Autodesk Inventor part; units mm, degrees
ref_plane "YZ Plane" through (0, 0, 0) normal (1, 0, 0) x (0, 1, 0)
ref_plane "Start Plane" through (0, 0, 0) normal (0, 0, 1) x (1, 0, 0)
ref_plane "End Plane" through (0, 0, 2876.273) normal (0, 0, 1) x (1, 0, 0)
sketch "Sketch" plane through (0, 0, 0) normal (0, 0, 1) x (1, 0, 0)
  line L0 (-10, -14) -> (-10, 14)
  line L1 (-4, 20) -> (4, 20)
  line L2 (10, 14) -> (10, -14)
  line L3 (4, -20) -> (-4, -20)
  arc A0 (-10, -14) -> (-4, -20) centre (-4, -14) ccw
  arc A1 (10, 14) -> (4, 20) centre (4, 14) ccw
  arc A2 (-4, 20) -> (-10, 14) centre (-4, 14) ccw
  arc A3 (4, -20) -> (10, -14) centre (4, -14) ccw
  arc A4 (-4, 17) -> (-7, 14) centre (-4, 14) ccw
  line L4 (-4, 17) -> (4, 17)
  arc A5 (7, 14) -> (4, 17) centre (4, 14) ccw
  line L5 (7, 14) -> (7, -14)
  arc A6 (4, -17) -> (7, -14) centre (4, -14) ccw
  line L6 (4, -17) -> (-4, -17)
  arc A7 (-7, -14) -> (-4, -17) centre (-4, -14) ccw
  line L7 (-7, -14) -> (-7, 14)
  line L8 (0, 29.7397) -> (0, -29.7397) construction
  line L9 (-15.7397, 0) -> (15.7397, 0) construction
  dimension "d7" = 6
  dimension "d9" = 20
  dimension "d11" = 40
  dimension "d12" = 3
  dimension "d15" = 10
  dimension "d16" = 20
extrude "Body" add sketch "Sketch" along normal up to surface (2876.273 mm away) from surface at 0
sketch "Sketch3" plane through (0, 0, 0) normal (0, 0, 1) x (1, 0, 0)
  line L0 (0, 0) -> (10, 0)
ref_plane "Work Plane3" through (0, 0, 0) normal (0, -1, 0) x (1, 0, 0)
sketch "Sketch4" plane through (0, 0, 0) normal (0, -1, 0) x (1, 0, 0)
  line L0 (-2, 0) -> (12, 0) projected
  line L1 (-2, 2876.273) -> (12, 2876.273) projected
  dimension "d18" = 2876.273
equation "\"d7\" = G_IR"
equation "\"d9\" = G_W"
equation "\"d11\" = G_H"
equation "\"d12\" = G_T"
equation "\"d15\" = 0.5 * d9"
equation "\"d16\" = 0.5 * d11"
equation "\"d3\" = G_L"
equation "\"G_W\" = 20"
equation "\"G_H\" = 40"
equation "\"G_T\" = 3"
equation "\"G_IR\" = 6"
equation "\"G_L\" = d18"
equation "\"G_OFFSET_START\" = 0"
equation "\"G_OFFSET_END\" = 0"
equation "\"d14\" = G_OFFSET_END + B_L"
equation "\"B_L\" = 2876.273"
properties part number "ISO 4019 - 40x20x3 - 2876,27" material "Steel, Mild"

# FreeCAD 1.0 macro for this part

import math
import FreeCAD as App
import Part
import Sketcher
from FreeCAD import Vector
Q = App.Units.Quantity

doc = App.newDocument("Part")
body = doc.addObject("PartDesign::Body", "Body")

# Sketch on XY plane
sketch1 = body.newObject("Sketcher::SketchObject", "Sketch")
sketch1.AttachmentSupport = (doc.getObject("XY_Plane"), [""])
sketch1.MapMode = "FlatFace"
sketch1.addGeometry(Part.LineSegment(Vector(-10, 14, 0), Vector(-10, -14, 0)), False)
sketch1.addGeometry(Part.ArcOfCircle(Part.Circle(Vector(-4, -14, 0), Vector(0, 0, 1), 6), math.radians(180), math.radians(270)), False)
sketch1.addGeometry(Part.LineSegment(Vector(-4, -20, 0), Vector(4, -20, 0)), False)
sketch1.addGeometry(Part.ArcOfCircle(Part.Circle(Vector(4, -14, 0), Vector(0, 0, 1), 6), math.radians(-90), math.radians(0)), False)
sketch1.addGeometry(Part.LineSegment(Vector(10, -14, 0), Vector(10, 14, 0)), False)
sketch1.addGeometry(Part.ArcOfCircle(Part.Circle(Vector(4, 14, 0), Vector(0, 0, 1), 6), math.radians(0), math.radians(90)), False)
sketch1.addGeometry(Part.LineSegment(Vector(4, 20, 0), Vector(-4, 20, 0)), False)
sketch1.addGeometry(Part.ArcOfCircle(Part.Circle(Vector(-4, 14, 0), Vector(0, 0, 1), 6), math.radians(90), math.radians(180)), False)
sketch1.addGeometry(Part.ArcOfCircle(Part.Circle(Vector(-4, 14, 0), Vector(0, 0, 1), 3), math.radians(90), math.radians(180)), False)
sketch1.addGeometry(Part.LineSegment(Vector(-4, 17, 0), Vector(4, 17, 0)), False)
sketch1.addGeometry(Part.ArcOfCircle(Part.Circle(Vector(4, 14, 0), Vector(0, 0, 1), 3), math.radians(0), math.radians(90)), False)
sketch1.addGeometry(Part.LineSegment(Vector(7, 14, 0), Vector(7, -14, 0)), False)
sketch1.addGeometry(Part.ArcOfCircle(Part.Circle(Vector(4, -14, 0), Vector(0, 0, 1), 3), math.radians(-90), math.radians(0)), False)
sketch1.addGeometry(Part.LineSegment(Vector(4, -17, 0), Vector(-4, -17, 0)), False)
sketch1.addGeometry(Part.ArcOfCircle(Part.Circle(Vector(-4, -14, 0), Vector(0, 0, 1), 3), math.radians(180), math.radians(270)), False)
sketch1.addGeometry(Part.LineSegment(Vector(-7, -14, 0), Vector(-7, 14, 0)), False)
sketch1.addConstraint(Sketcher.Constraint("Tangent", 0, 2, 1, 1))
sketch1.addConstraint(Sketcher.Constraint("Tangent", 1, 2, 2, 1))
sketch1.addConstraint(Sketcher.Constraint("Tangent", 2, 2, 3, 1))
sketch1.addConstraint(Sketcher.Constraint("Tangent", 3, 2, 4, 1))
sketch1.addConstraint(Sketcher.Constraint("Tangent", 4, 2, 5, 1))
sketch1.addConstraint(Sketcher.Constraint("Tangent", 5, 2, 6, 1))
sketch1.addConstraint(Sketcher.Constraint("Tangent", 6, 2, 7, 1))
sketch1.addConstraint(Sketcher.Constraint("Tangent", 7, 2, 0, 1))
sketch1.addConstraint(Sketcher.Constraint("Tangent", 8, 1, 9, 1))
sketch1.addConstraint(Sketcher.Constraint("Tangent", 9, 2, 10, 2))
sketch1.addConstraint(Sketcher.Constraint("Tangent", 10, 1, 11, 1))
sketch1.addConstraint(Sketcher.Constraint("Tangent", 11, 2, 12, 2))
sketch1.addConstraint(Sketcher.Constraint("Tangent", 12, 1, 13, 1))
sketch1.addConstraint(Sketcher.Constraint("Tangent", 13, 2, 14, 2))
sketch1.addConstraint(Sketcher.Constraint("Tangent", 14, 1, 15, 1))
sketch1.addConstraint(Sketcher.Constraint("Tangent", 15, 2, 8, 2))
sketch1.addConstraint(Sketcher.Constraint("Vertical", 0))
sketch1.addConstraint(Sketcher.Constraint("Horizontal", 2))
sketch1.addConstraint(Sketcher.Constraint("Vertical", 4))
sketch1.addConstraint(Sketcher.Constraint("Horizontal", 6))
sketch1.addConstraint(Sketcher.Constraint("Horizontal", 9))
sketch1.addConstraint(Sketcher.Constraint("Vertical", 11))
sketch1.addConstraint(Sketcher.Constraint("Horizontal", 13))
sketch1.addConstraint(Sketcher.Constraint("Vertical", 15))
sketch1.addConstraint(Sketcher.Constraint("Coincident", 8, 3, 7, 3))
sketch1.addConstraint(Sketcher.Constraint("Coincident", 10, 3, 5, 3))
sketch1.addConstraint(Sketcher.Constraint("Coincident", 12, 3, 3, 3))
sketch1.addConstraint(Sketcher.Constraint("Equal", 1, 3))
sketch1.addConstraint(Sketcher.Constraint("Equal", 3, 5))
sketch1.addConstraint(Sketcher.Constraint("Equal", 5, 7))
sketch1.addConstraint(Sketcher.Constraint("Equal", 12, 14))
sketch1.addConstraint(Sketcher.Constraint("Symmetric", 1, 3, 5, 3, -1, 1))
sketch1.addConstraint(Sketcher.Constraint("Radius", 1, Q("6 mm")))
sketch1.addConstraint(Sketcher.Constraint("Radius", 8, Q("3 mm")))
sketch1.addConstraint(Sketcher.Constraint("DistanceX", 0, 2, -1, 1, Q("10 mm")))
sketch1.addConstraint(Sketcher.Constraint("DistanceY", 1, 2, -1, 1, Q("20 mm")))
pad1 = body.newObject("PartDesign::Pad", "Pad")
pad1.Profile = sketch1
pad1.Length = 2876.273

doc.recompute()
